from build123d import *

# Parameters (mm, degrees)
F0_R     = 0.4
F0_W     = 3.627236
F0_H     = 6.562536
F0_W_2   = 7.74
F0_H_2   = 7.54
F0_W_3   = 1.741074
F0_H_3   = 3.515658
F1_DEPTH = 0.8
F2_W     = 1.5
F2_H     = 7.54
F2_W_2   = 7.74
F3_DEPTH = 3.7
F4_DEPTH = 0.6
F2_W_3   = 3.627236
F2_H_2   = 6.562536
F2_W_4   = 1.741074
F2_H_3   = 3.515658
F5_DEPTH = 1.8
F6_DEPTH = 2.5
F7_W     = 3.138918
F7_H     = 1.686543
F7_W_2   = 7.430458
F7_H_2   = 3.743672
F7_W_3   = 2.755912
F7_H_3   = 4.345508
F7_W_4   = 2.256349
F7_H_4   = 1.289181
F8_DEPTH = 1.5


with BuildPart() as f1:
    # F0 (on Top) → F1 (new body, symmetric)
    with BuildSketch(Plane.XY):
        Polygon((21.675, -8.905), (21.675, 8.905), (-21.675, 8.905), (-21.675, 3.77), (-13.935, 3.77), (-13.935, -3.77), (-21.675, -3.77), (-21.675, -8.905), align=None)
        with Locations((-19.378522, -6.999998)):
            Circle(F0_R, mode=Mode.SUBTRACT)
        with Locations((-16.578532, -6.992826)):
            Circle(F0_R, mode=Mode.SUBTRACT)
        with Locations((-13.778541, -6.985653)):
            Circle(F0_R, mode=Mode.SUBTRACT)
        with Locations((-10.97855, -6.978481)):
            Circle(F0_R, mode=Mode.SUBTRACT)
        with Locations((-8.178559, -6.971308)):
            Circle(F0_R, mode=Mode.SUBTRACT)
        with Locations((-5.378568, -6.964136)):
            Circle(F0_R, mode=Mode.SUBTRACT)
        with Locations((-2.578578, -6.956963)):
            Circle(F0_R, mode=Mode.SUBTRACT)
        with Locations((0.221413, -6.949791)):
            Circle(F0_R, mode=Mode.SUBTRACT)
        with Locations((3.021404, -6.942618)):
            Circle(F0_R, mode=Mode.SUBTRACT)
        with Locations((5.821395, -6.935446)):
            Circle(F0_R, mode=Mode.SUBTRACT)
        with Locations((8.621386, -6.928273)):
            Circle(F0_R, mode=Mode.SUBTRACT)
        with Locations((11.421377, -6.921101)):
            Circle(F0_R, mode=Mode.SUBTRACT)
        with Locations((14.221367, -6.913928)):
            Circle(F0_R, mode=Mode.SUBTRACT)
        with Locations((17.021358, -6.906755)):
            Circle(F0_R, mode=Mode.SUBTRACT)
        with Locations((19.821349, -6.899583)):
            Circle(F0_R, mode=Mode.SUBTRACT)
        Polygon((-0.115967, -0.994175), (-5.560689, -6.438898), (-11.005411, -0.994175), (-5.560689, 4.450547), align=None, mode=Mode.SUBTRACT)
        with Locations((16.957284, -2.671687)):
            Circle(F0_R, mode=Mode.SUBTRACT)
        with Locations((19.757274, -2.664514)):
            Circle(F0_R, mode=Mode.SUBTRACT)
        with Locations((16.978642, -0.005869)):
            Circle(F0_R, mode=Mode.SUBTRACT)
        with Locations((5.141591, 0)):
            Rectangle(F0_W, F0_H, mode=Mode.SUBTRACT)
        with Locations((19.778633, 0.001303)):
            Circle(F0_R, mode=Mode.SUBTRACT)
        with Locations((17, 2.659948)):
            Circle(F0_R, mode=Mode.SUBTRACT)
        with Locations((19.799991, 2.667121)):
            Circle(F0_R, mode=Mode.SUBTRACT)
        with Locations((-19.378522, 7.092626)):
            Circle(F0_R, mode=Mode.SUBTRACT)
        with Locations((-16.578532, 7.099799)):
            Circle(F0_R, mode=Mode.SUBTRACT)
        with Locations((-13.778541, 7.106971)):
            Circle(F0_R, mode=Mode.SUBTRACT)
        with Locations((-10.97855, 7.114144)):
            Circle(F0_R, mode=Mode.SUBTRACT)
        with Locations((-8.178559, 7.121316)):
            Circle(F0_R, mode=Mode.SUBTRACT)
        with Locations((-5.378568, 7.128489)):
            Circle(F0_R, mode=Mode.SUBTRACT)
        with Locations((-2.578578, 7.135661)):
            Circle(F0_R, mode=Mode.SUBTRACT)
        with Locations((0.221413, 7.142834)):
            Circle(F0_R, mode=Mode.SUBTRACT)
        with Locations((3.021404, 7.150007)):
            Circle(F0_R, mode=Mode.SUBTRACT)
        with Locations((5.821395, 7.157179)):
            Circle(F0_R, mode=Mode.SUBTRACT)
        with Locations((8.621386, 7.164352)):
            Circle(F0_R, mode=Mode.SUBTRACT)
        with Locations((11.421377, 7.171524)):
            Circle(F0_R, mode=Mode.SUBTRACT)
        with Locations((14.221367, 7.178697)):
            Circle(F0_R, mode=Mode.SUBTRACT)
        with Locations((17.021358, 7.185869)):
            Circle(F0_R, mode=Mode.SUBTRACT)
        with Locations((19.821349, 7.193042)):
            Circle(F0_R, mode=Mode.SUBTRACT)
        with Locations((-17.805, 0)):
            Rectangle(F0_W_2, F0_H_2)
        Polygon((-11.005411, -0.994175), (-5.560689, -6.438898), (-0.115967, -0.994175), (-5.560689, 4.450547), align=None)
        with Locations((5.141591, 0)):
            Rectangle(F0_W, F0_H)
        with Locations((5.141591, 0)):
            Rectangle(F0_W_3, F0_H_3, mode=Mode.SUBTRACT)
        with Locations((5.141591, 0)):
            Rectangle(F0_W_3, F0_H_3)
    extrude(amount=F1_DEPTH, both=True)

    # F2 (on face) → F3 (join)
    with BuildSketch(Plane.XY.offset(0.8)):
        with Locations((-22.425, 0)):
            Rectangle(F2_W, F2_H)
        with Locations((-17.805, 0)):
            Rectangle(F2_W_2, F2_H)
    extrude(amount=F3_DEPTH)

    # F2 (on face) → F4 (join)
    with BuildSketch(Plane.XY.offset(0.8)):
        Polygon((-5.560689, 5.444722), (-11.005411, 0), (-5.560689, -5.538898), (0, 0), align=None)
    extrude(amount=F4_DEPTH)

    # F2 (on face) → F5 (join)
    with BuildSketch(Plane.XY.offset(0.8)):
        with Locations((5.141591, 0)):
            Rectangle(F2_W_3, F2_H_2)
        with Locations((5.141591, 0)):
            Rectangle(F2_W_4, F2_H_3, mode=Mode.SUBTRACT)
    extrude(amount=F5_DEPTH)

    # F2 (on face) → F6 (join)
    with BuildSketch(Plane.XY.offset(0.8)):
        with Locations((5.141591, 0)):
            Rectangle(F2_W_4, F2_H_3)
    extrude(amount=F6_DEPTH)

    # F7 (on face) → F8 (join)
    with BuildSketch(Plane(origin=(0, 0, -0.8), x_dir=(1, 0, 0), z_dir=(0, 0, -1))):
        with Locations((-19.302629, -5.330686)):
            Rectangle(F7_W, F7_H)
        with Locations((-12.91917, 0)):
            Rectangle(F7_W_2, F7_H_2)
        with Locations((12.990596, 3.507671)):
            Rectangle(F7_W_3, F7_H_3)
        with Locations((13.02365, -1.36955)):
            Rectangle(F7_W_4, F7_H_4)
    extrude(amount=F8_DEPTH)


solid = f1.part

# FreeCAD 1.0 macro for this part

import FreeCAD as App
import Part
import Sketcher
Q = App.Units.Quantity


def add_polygon(sketch, points):
    """Adds a closed chain of lines whose ends are joined by coincident constraints."""
    first, n = sketch.GeometryCount, len(points)
    for a, b in zip(points, points[1:] + points[:1]):
        sketch.addGeometry(Part.LineSegment(App.Vector(*a, 0), App.Vector(*b, 0)), False)
    for i in range(n):
        sketch.addConstraint(Sketcher.Constraint("Coincident", first + i, 2, first + (i + 1) % n, 1))

doc = App.newDocument("Part")
body = doc.addObject("PartDesign::Body", "Body")

sketch1 = body.newObject("Sketcher::SketchObject", "Sketch")
sketch1.AttachmentSupport = (doc.getObject("XY_Plane"), [""])
sketch1.MapMode = "FlatFace"
add_polygon(sketch1, [(21.675, -8.905), (21.675, 8.905), (-21.675, 8.905), (-21.675, -8.905)])
sketch1.addGeometry(Part.Circle(App.Vector(-19.378522, -6.999998, 0), App.Vector(0, 0, 1), 0.4), False)
sketch1.addGeometry(Part.Circle(App.Vector(-16.578532, -6.992826, 0), App.Vector(0, 0, 1), 0.4), False)
sketch1.addGeometry(Part.Circle(App.Vector(-13.778541, -6.985653, 0), App.Vector(0, 0, 1), 0.4), False)
sketch1.addGeometry(Part.Circle(App.Vector(-10.97855, -6.978481, 0), App.Vector(0, 0, 1), 0.4), False)
sketch1.addGeometry(Part.Circle(App.Vector(-8.178559, -6.971308, 0), App.Vector(0, 0, 1), 0.4), False)
sketch1.addGeometry(Part.Circle(App.Vector(-5.378568, -6.964136, 0), App.Vector(0, 0, 1), 0.4), False)
sketch1.addGeometry(Part.Circle(App.Vector(-2.578578, -6.956963, 0), App.Vector(0, 0, 1), 0.4), False)
sketch1.addGeometry(Part.Circle(App.Vector(0.221413, -6.949791, 0), App.Vector(0, 0, 1), 0.4), False)
sketch1.addGeometry(Part.Circle(App.Vector(3.021404, -6.942618, 0), App.Vector(0, 0, 1), 0.4), False)
sketch1.addGeometry(Part.Circle(App.Vector(5.821395, -6.935446, 0), App.Vector(0, 0, 1), 0.4), False)
sketch1.addGeometry(Part.Circle(App.Vector(8.621386, -6.928273, 0), App.Vector(0, 0, 1), 0.4), False)
sketch1.addGeometry(Part.Circle(App.Vector(11.421377, -6.921101, 0), App.Vector(0, 0, 1), 0.4), False)
sketch1.addGeometry(Part.Circle(App.Vector(14.221367, -6.913928, 0), App.Vector(0, 0, 1), 0.4), False)
sketch1.addGeometry(Part.Circle(App.Vector(17.021358, -6.906755, 0), App.Vector(0, 0, 1), 0.4), False)
sketch1.addGeometry(Part.Circle(App.Vector(19.821349, -6.899583, 0), App.Vector(0, 0, 1), 0.4), False)
sketch1.addGeometry(Part.Circle(App.Vector(16.957284, -2.671687, 0), App.Vector(0, 0, 1), 0.4), False)
sketch1.addGeometry(Part.Circle(App.Vector(19.757274, -2.664514, 0), App.Vector(0, 0, 1), 0.4), False)
sketch1.addGeometry(Part.Circle(App.Vector(16.978642, -0.005869, 0), App.Vector(0, 0, 1), 0.4), False)
sketch1.addGeometry(Part.Circle(App.Vector(19.778633, 0.001303, 0), App.Vector(0, 0, 1), 0.4), False)
sketch1.addGeometry(Part.Circle(App.Vector(-19.378522, 7.092626, 0), App.Vector(0, 0, 1), 0.4), False)
sketch1.addGeometry(Part.Circle(App.Vector(-16.578532, 7.099799, 0), App.Vector(0, 0, 1), 0.4), False)
sketch1.addGeometry(Part.Circle(App.Vector(-13.778541, 7.106971, 0), App.Vector(0, 0, 1), 0.4), False)
sketch1.addGeometry(Part.Circle(App.Vector(-10.97855, 7.114144, 0), App.Vector(0, 0, 1), 0.4), False)
sketch1.addGeometry(Part.Circle(App.Vector(-8.178559, 7.121316, 0), App.Vector(0, 0, 1), 0.4), False)
sketch1.addGeometry(Part.Circle(App.Vector(-5.378568, 7.128489, 0), App.Vector(0, 0, 1), 0.4), False)
sketch1.addGeometry(Part.Circle(App.Vector(-2.578578, 7.135661, 0), App.Vector(0, 0, 1), 0.4), False)
sketch1.addGeometry(Part.Circle(App.Vector(0.221413, 7.142834, 0), App.Vector(0, 0, 1), 0.4), False)
sketch1.addGeometry(Part.Circle(App.Vector(17, 2.659948, 0), App.Vector(0, 0, 1), 0.4), False)
sketch1.addGeometry(Part.Circle(App.Vector(19.799991, 2.667121, 0), App.Vector(0, 0, 1), 0.4), False)
sketch1.addGeometry(Part.Circle(App.Vector(3.021404, 7.150007, 0), App.Vector(0, 0, 1), 0.4), False)
sketch1.addGeometry(Part.Circle(App.Vector(5.821395, 7.157179, 0), App.Vector(0, 0, 1), 0.4), False)
sketch1.addGeometry(Part.Circle(App.Vector(8.621386, 7.164352, 0), App.Vector(0, 0, 1), 0.4), False)
sketch1.addGeometry(Part.Circle(App.Vector(11.421377, 7.171524, 0), App.Vector(0, 0, 1), 0.4), False)
sketch1.addGeometry(Part.Circle(App.Vector(14.221367, 7.178697, 0), App.Vector(0, 0, 1), 0.4), False)
sketch1.addGeometry(Part.Circle(App.Vector(17.021358, 7.185869, 0), App.Vector(0, 0, 1), 0.4), False)
sketch1.addGeometry(Part.Circle(App.Vector(19.821349, 7.193042, 0), App.Vector(0, 0, 1), 0.4), False)
sketch1.addConstraint([
    Sketcher.Constraint("Vertical", 0),
    Sketcher.Constraint("Horizontal", 1),
    Sketcher.Constraint("Vertical", 2),
    Sketcher.Constraint("Horizontal", 3),
    Sketcher.Constraint("Equal", 4, 5),
    Sketcher.Constraint("Equal", 5, 6),
    Sketcher.Constraint("Equal", 6, 7),
    Sketcher.Constraint("Equal", 7, 8),
    Sketcher.Constraint("Equal", 8, 9),
    Sketcher.Constraint("Equal", 9, 10),
    Sketcher.Constraint("Equal", 10, 11),
    Sketcher.Constraint("Equal", 11, 12),
    Sketcher.Constraint("Equal", 12, 13),
    Sketcher.Constraint("Equal", 13, 14),
    Sketcher.Constraint("Equal", 14, 15),
    Sketcher.Constraint("Equal", 15, 16),
    Sketcher.Constraint("Equal", 16, 17),
    Sketcher.Constraint("Equal", 17, 18),
    Sketcher.Constraint("Equal", 18, 19),
    Sketcher.Constraint("Equal", 19, 20),
    Sketcher.Constraint("Equal", 20, 21),
    Sketcher.Constraint("Equal", 21, 22),
    Sketcher.Constraint("Equal", 22, 23),
    Sketcher.Constraint("Equal", 23, 24),
    Sketcher.Constraint("Equal", 24, 25),
    Sketcher.Constraint("Equal", 25, 26),
    Sketcher.Constraint("Equal", 26, 27),
    Sketcher.Constraint("Equal", 27, 28),
    Sketcher.Constraint("Equal", 28, 29),
    Sketcher.Constraint("Equal", 29, 30),
    Sketcher.Constraint("Equal", 30, 31),
    Sketcher.Constraint("Equal", 31, 32),
    Sketcher.Constraint("Equal", 32, 33),
    Sketcher.Constraint("Equal", 33, 34),
    Sketcher.Constraint("Equal", 34, 35),
    Sketcher.Constraint("Equal", 35, 36),
    Sketcher.Constraint("Equal", 36, 37),
    Sketcher.Constraint("Equal", 37, 38),
    Sketcher.Constraint("Equal", 38, 39),
    Sketcher.Constraint("Symmetric", 0, 2, 2, 2, -1, 1),
    Sketcher.Constraint("Vertical", 4, 3, 23, 3),
    Sketcher.Constraint("Vertical", 5, 3, 24, 3),
    Sketcher.Constraint("Vertical", 6, 3, 25, 3),
    Sketcher.Constraint("Vertical", 7, 3, 26, 3),
    Sketcher.Constraint("Vertical", 8, 3, 27, 3),
    Sketcher.Constraint("Vertical", 9, 3, 28, 3),
    Sketcher.Constraint("Vertical", 10, 3, 29, 3),
    Sketcher.Constraint("Vertical", 11, 3, 30, 3),
    Sketcher.Constraint("Vertical", 12, 3, 33, 3),
    Sketcher.Constraint("Vertical", 13, 3, 34, 3),
    Sketcher.Constraint("Vertical", 14, 3, 35, 3),
    Sketcher.Constraint("Vertical", 15, 3, 36, 3),
    Sketcher.Constraint("Vertical", 16, 3, 37, 3),
    Sketcher.Constraint("Vertical", 17, 3, 38, 3),
    Sketcher.Constraint("Vertical", 18, 3, 39, 3),
    Sketcher.Constraint("Diameter", 4, 0.8),
    Sketcher.Constraint("DistanceX", -1, 1, 31, 3, 17.0),
    Sketcher.Constraint("DistanceX", 1, 2, 1, 1, 43.35),
    Sketcher.Constraint("DistanceY", 0, 1, 0, 2, 17.81),
    Sketcher.Constraint("DistanceY", 2, 2, 4, 3, 1.905002),
    Sketcher.Constraint("DistanceY", 15, 3, -1, 1, 6.921101),
    Sketcher.Constraint("DistanceY", -1, 1, 24, 3, 7.099799),
    Sketcher.Constraint("DistanceX", 14, 3, 19, 3, 8.335898),
    Sketcher.Constraint("DistanceX", 4, 3, -1, 1, 19.378522),
    Sketcher.Constraint("DistanceX", 5, 3, -1, 1, 16.578532),
    Sketcher.Constraint("DistanceX", 6, 3, -1, 1, 13.778541),
    Sketcher.Constraint("DistanceX", 7, 3, -1, 1, 10.97855),
    Sketcher.Constraint("DistanceY", 7, 3, -1, 1, 6.978481),
    Sketcher.Constraint("DistanceX", 8, 3, -1, 1, 8.178559),
    Sketcher.Constraint("DistanceY", 11, 3, -1, 1, 6.949791),
    Sketcher.Constraint("DistanceY", 12, 3, -1, 1, 6.942618),
    Sketcher.Constraint("DistanceY", 16, 3, -1, 1, 6.913928),
    Sketcher.Constraint("DistanceX", -1, 1, 18, 3, 19.821349),
    Sketcher.Constraint("DistanceY", 21, 3, -1, 1, 0.005869),
    Sketcher.Constraint("DistanceY", -1, 1, 25, 3, 7.106971),
    Sketcher.Constraint("DistanceY", -1, 1, 28, 3, 7.128489),
    Sketcher.Constraint("DistanceY", -1, 1, 29, 3, 7.135661),
    Sketcher.Constraint("DistanceY", -1, 1, 31, 3, 2.659948),
    Sketcher.Constraint("DistanceX", -1, 1, 32, 3, 19.799991),
    Sketcher.Constraint("DistanceY", -1, 1, 32, 3, 2.667121),
    Sketcher.Constraint("DistanceY", -1, 1, 34, 3, 7.157179),
    Sketcher.Constraint("DistanceY", -1, 1, 38, 3, 7.185869),
    Sketcher.Constraint("DistanceY", 4, 3, 5, 3, 0.007172),
    Sketcher.Constraint("DistanceY", 6, 3, 7, 3, 0.007172),
    Sketcher.Constraint("DistanceY", 5, 3, 8, 3, 0.021518),
    Sketcher.Constraint("DistanceX", 8, 3, 9, 3, 2.799991),
    Sketcher.Constraint("DistanceY", 8, 3, 9, 3, 0.007172),
    Sketcher.Constraint("DistanceX", 9, 3, 10, 3, 2.79999),
    Sketcher.Constraint("DistanceY", 7, 3, 10, 3, 0.021518),
    Sketcher.Constraint("DistanceX", 10, 3, 11, 3, 2.799991),
    Sketcher.Constraint("DistanceX", 11, 3, 12, 3, 2.799991),
    Sketcher.Constraint("DistanceX", 12, 3, 13, 3, 2.799991),
    Sketcher.Constraint("DistanceY", 9, 3, 13, 3, 0.02869),
    Sketcher.Constraint("DistanceX", 13, 3, 14, 3, 2.799991),
    Sketcher.Constraint("DistanceY", 11, 3, 14, 3, 0.021518),
    Sketcher.Constraint("DistanceX", 14, 3, 15, 3, 2.799991),
    Sketcher.Constraint("DistanceX", 15, 3, 16, 3, 2.79999),
    Sketcher.Constraint("DistanceX", 16, 3, 17, 3, 2.799991),
    Sketcher.Constraint("DistanceY", 13, 3, 17, 3, 0.028691),
    Sketcher.Constraint("DistanceY", 15, 3, 18, 3, 0.021518),
    Sketcher.Constraint("DistanceY", 16, 3, 19, 3, 4.242241),
    Sketcher.Constraint("DistanceX", 19, 3, 20, 3, 2.79999),
    Sketcher.Constraint("DistanceY", 18, 3, 20, 3, 4.235069),
    Sketcher.Constraint("DistanceX", 21, 3, 20, 3, 2.778632),
    Sketcher.Constraint("DistanceX", 20, 3, 22, 3, 0.021359),
    Sketcher.Constraint("DistanceY", 21, 3, 22, 3, 0.007172),
    Sketcher.Constraint("DistanceY", 6, 3, 23, 3, 14.078279),
    Sketcher.Constraint("DistanceY", 23, 3, 27, 3, 0.02869),
    Sketcher.Constraint("DistanceY", 26, 3, 30, 3, 0.02869),
    Sketcher.Constraint("DistanceY", 27, 3, 33, 3, 0.028691),
    Sketcher.Constraint("DistanceY", 30, 3, 35, 3, 0.021518),
    Sketcher.Constraint("DistanceY", 21, 3, 35, 3, 7.170221),
    Sketcher.Constraint("DistanceY", 35, 3, 36, 3, 0.007172),
    Sketcher.Constraint("DistanceY", 31, 3, 37, 3, 4.518749),
    Sketcher.Constraint("DistanceY", 32, 3, 39, 3, 4.525921),
])
pad1 = body.newObject("PartDesign::Pad", "Pad")
pad1.Profile = sketch1
pad1.Length = 1.6
pad1.Midplane = True

sketch2 = body.newObject("Sketcher::SketchObject", "Sketch001")
sketch2.AttachmentSupport = (doc.getObject("XY_Plane"), [""])
sketch2.MapMode = "FlatFace"
sketch2.AttachmentOffset = App.Placement(App.Vector(0, 0, 0.8), App.Rotation())
add_polygon(sketch2, [(-23.175, 3.77), (-23.175, -3.77), (-13.935, -3.77), (-13.935, 3.77)])
sketch2.addConstraint([
    Sketcher.Constraint("Vertical", 0),
    Sketcher.Constraint("Horizontal", 1),
    Sketcher.Constraint("Vertical", 2),
    Sketcher.Constraint("Horizontal", 3),
    Sketcher.Constraint("DistanceX", 1, 1, 1, 2, 9.24),
    Sketcher.Constraint("DistanceY", 0, 2, 0, 1, 7.54),
    Sketcher.Constraint("DistanceY", 0, 2, -1, 1, 3.77),
    Sketcher.Constraint("DistanceX", 0, 2, -1, 1, 23.175),
])
pad2 = body.newObject("PartDesign::Pad", "Pad001")
pad2.Profile = sketch2
pad2.Length = 3.7

sketch3 = body.newObject("Sketcher::SketchObject", "Sketch002")
sketch3.AttachmentSupport = (doc.getObject("XY_Plane"), [""])
sketch3.MapMode = "FlatFace"
sketch3.AttachmentOffset = App.Placement(App.Vector(0, 0, 0.8), App.Rotation())
add_polygon(sketch3, [(-5.560689, 5.444722), (-11.005411, 0), (-5.560689, -5.538898), (0, 0)])
sketch3.addConstraint([
    Sketcher.Constraint("Coincident", 2, 2, -1, 1),
    Sketcher.Constraint("PointOnObject", 0, 2, -1),
    Sketcher.Constraint("Vertical", 1, 2, 3, 2),
    Sketcher.Constraint("Angle", 0, Q("-135 deg")),
    Sketcher.Constraint("Distance", 0, 7.7),
    Sketcher.Constraint("Distance", 2, 7.848608),
    Sketcher.Constraint("DistanceX", 0, 2, -1, 1, 11.005411),
])
pad3 = body.newObject("PartDesign::Pad", "Pad002")
pad3.Profile = sketch3
pad3.Length = 0.6

sketch4 = body.newObject("Sketcher::SketchObject", "Sketch003")
sketch4.AttachmentSupport = (doc.getObject("XY_Plane"), [""])
sketch4.MapMode = "FlatFace"
sketch4.AttachmentOffset = App.Placement(App.Vector(0, 0, 0.8), App.Rotation())
add_polygon(sketch4, [(3.327973, 3.281268), (3.327973, -3.281268), (6.955209, -3.281268), (6.955209, 3.281268)])
add_polygon(sketch4, [(6.012128, -1.757829), (4.271054, -1.757829), (4.271054, 1.757829), (6.012128, 1.757829)])
sketch4.addConstraint([
    Sketcher.Constraint("Vertical", 0),
    Sketcher.Constraint("Horizontal", 1),
    Sketcher.Constraint("Vertical", 2),
    Sketcher.Constraint("Horizontal", 3),
    Sketcher.Constraint("Horizontal", 4),
    Sketcher.Constraint("Vertical", 5),
    Sketcher.Constraint("Horizontal", 6),
    Sketcher.Constraint("Vertical", 7),
    Sketcher.Constraint("DistanceY", 5, 1, 5, 2, 3.515658),
    Sketcher.Constraint("DistanceX", 1, 1, 1, 2, 3.627236),
    Sketcher.Constraint("DistanceX", 4, 2, 4, 1, 1.741074),
    Sketcher.Constraint("DistanceY", 0, 2, 0, 1, 6.562536),
    Sketcher.Constraint("DistanceX", -1, 1, 1, 2, 6.955209),
    Sketcher.Constraint("DistanceY", 4, 2, -1, 1, 1.757829),
    Sketcher.Constraint("DistanceX", 0, 2, 4, 2, 0.943081),
    Sketcher.Constraint("DistanceY", 0, 2, 4, 2, 1.523439),
])
pad4 = body.newObject("PartDesign::Pad", "Pad003")
pad4.Profile = sketch4
pad4.Length = 1.8

sketch5 = body.newObject("Sketcher::SketchObject", "Sketch004")
sketch5.AttachmentSupport = (doc.getObject("XY_Plane"), [""])
sketch5.MapMode = "FlatFace"
sketch5.AttachmentOffset = App.Placement(App.Vector(0, 0, 0.8), App.Rotation())
add_polygon(sketch5, [(4.271054, 1.757829), (4.271054, -1.757829), (6.012128, -1.757829), (6.012128, 1.757829)])
sketch5.addConstraint([
    Sketcher.Constraint("Vertical", 0),
    Sketcher.Constraint("Horizontal", 1),
    Sketcher.Constraint("Vertical", 2),
    Sketcher.Constraint("Horizontal", 3),
    Sketcher.Constraint("DistanceY", 0, 2, 0, 1, 3.515658),
    Sketcher.Constraint("DistanceX", 1, 1, 1, 2, 1.741074),
    Sketcher.Constraint("DistanceY", 0, 2, -1, 1, 1.757829),
    Sketcher.Constraint("DistanceX", -1, 1, 0, 2, 4.271054),
])
pad5 = body.newObject("PartDesign::Pad", "Pad004")
pad5.Profile = sketch5
pad5.Length = 2.5

sketch6 = body.newObject("Sketcher::SketchObject", "Sketch005")
sketch6.AttachmentSupport = (doc.getObject("XY_Plane"), [""])
sketch6.MapMode = "FlatFace"
sketch6.AttachmentOffset = App.Placement(App.Vector(0, 0, -0.8), App.Rotation())
add_polygon(sketch6, [(-20.872088, 4.487414), (-20.872088, 6.173958), (-17.73317, 6.173958), (-17.73317, 4.487414)])
add_polygon(sketch6, [(-16.634399, -1.871836), (-16.634399, 1.871836), (-9.203941, 1.871836), (-9.203941, -1.871836)])
add_polygon(sketch6, [(11.61264, -5.680425), (11.61264, -1.334917), (14.368552, -1.334917), (14.368552, -5.680425)])
add_polygon(sketch6, [(11.895475, 0.724959), (11.895475, 2.01414), (14.151825, 2.01414), (14.151825, 0.724959)])
sketch6.addConstraint([
    Sketcher.Constraint("Vertical", 0),
    Sketcher.Constraint("Horizontal", 1),
    Sketcher.Constraint("Vertical", 2),
    Sketcher.Constraint("Horizontal", 3),
    Sketcher.Constraint("Vertical", 4),
    Sketcher.Constraint("Horizontal", 5),
    Sketcher.Constraint("Vertical", 6),
    Sketcher.Constraint("Horizontal", 7),
    Sketcher.Constraint("Vertical", 8),
    Sketcher.Constraint("Horizontal", 9),
    Sketcher.Constraint("Vertical", 10),
    Sketcher.Constraint("Horizontal", 11),
    Sketcher.Constraint("Vertical", 12),
    Sketcher.Constraint("Horizontal", 13),
    Sketcher.Constraint("Vertical", 14),
    Sketcher.Constraint("Horizontal", 15),
    Sketcher.Constraint("DistanceX", 1, 1, 1, 2, 3.138918),
    Sketcher.Constraint("DistanceX", 9, 1, 9, 2, 2.755912),
    Sketcher.Constraint("DistanceX", 13, 1, 13, 2, 2.256349),
    Sketcher.Constraint("DistanceY", 12, 1, 12, 2, 1.289181),
    Sketcher.Constraint("DistanceX", 4, 2, -1, 1, 16.634399),
    Sketcher.Constraint("DistanceX", 5, 1, 5, 2, 7.430458),
    Sketcher.Constraint("DistanceY", 0, 1, 0, 2, 1.686543),
    Sketcher.Constraint("DistanceY", 4, 1, 4, 2, 3.743672),
    Sketcher.Constraint("DistanceY", 8, 1, 8, 2, 4.345508),
    Sketcher.Constraint("DistanceX", 0, 2, -1, 1, 20.872088),
    Sketcher.Constraint("DistanceX", -1, 1, 8, 2, 11.61264),
    Sketcher.Constraint("DistanceY", -1, 1, 12, 2, 2.01414),
    Sketcher.Constraint("DistanceY", 4, 2, 2, 2, 2.615578),
    Sketcher.Constraint("DistanceY", 6, 2, 8, 2, 0.536919),
    Sketcher.Constraint("DistanceY", -1, 1, 0, 2, 6.173958),
    Sketcher.Constraint("DistanceX", -1, 1, 12, 2, 11.895475),
])
pad6 = body.newObject("PartDesign::Pad", "Pad005")
pad6.Profile = sketch6
pad6.Length = 1.5
pad6.Reversed = True

doc.recompute()
